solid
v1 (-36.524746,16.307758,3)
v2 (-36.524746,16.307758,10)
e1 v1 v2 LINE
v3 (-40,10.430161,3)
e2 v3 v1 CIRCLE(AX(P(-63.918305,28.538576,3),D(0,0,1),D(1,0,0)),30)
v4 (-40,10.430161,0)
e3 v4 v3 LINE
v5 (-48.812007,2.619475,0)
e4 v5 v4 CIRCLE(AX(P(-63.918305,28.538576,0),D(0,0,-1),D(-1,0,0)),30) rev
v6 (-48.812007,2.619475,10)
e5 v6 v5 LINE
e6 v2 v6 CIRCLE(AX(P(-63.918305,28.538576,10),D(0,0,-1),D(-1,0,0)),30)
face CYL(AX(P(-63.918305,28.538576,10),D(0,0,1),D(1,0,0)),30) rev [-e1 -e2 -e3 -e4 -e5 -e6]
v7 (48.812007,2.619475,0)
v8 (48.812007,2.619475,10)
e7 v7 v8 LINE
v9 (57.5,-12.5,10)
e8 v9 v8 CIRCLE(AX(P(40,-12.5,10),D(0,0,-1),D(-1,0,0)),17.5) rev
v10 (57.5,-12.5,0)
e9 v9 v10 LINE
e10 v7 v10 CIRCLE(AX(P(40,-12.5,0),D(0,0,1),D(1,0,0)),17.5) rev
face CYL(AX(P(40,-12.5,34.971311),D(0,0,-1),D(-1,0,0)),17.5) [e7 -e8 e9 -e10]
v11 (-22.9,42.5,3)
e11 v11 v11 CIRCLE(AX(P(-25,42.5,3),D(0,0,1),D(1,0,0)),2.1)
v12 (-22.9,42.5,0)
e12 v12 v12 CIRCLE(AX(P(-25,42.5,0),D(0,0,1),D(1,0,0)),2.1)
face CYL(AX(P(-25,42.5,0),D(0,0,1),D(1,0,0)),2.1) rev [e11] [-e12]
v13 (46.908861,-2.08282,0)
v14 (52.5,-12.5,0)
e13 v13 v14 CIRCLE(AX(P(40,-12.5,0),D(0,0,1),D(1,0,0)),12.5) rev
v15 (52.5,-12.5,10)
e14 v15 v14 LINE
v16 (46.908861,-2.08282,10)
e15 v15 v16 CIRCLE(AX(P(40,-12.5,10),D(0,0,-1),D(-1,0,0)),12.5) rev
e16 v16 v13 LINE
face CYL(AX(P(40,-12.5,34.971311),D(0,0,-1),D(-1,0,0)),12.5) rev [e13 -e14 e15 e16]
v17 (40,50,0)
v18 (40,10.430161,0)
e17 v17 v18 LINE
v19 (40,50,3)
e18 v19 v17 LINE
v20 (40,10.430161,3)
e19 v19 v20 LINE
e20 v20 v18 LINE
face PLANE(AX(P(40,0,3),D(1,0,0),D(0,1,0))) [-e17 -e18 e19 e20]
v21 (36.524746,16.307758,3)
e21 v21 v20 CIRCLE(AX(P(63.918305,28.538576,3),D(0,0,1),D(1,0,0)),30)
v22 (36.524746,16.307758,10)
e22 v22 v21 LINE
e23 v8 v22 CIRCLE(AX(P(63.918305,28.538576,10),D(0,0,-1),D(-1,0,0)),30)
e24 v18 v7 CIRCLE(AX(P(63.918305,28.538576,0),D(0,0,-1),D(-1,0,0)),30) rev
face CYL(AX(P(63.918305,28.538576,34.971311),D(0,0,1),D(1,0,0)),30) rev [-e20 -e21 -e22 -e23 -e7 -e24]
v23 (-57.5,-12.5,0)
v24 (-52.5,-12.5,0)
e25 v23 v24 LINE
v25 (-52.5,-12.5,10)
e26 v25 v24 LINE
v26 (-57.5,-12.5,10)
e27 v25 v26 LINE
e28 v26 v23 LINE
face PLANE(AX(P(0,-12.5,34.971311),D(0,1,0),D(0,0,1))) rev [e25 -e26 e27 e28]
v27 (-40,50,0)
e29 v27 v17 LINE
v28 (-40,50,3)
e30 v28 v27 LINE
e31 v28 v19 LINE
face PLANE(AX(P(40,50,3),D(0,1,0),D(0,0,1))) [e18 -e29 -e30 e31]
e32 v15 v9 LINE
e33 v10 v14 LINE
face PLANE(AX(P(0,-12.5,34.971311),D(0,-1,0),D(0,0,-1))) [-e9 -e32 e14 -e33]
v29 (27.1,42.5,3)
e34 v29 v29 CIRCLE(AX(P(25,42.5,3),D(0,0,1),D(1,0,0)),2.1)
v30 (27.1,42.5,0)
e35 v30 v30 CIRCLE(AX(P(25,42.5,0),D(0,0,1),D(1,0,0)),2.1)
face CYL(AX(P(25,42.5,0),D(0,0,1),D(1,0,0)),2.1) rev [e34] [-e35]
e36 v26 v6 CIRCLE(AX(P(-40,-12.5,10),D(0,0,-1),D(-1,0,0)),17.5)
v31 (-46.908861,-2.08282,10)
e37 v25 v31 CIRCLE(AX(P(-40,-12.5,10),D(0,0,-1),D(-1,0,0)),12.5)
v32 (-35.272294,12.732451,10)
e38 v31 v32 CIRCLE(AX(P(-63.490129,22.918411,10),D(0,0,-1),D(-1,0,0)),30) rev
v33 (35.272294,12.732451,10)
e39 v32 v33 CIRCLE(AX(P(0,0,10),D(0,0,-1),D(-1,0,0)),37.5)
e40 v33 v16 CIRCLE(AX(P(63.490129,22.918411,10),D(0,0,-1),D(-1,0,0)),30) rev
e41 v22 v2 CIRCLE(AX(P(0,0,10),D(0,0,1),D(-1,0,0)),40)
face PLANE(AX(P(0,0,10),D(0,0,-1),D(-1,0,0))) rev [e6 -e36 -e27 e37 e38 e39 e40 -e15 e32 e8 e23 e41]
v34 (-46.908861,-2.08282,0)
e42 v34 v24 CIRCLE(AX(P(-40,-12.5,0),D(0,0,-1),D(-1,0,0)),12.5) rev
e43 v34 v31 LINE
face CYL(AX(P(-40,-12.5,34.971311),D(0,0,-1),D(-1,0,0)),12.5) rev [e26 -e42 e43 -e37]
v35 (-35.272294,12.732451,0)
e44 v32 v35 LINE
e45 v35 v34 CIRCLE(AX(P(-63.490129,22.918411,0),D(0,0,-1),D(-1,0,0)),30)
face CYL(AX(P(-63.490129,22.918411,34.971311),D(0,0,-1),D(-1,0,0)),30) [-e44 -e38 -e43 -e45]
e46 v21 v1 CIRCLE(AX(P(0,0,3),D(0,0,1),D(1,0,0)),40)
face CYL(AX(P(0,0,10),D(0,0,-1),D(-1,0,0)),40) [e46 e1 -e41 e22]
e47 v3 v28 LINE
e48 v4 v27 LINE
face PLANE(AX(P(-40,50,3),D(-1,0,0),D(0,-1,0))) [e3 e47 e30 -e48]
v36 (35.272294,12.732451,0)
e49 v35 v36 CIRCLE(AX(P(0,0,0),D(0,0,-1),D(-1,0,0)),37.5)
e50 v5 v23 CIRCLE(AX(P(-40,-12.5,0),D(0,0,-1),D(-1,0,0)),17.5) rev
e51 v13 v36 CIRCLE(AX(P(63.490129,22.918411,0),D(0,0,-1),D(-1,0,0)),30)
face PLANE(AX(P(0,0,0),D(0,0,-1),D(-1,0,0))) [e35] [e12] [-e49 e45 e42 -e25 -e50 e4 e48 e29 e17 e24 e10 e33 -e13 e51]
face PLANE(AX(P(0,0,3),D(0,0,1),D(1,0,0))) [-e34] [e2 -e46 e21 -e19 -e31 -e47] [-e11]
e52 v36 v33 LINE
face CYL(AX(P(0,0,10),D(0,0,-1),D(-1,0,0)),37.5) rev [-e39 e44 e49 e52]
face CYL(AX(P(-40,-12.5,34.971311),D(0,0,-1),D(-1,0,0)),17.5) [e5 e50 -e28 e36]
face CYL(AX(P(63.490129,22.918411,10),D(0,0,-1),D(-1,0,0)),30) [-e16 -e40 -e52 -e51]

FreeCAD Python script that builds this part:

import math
import FreeCAD as App
import Part
import Sketcher
from FreeCAD import Vector


def edges_at(feature, points):
    """Names of the edges that pass closest to the given points."""
    edges = feature.Shape.Edges
    near = lambda p: min(range(len(edges)), key=lambda i: edges[i].distToShape(Part.Vertex(*p))[0])
    return sorted({f"Edge{near(p) + 1}" for p in points})

doc = App.newDocument("Part")
body = doc.addObject("PartDesign::Body", "Body")

# Sketch on XY plane
sketch1 = body.newObject("Sketcher::SketchObject", "Sketch")
sketch1.AttachmentSupport = (doc.getObject("XY_Plane"), [""])
sketch1.MapMode = "FlatFace"
sketch1.addGeometry([
    Part.LineSegment(Vector(-40, 0, 0), Vector(-37.5, 0, 0)),
    Part.ArcOfCircle(Part.Circle(Vector(0, 0, 0), Vector(0, 0, 1), 37.5), math.radians(0), math.radians(180)),
    Part.LineSegment(Vector(37.5, 0, 0), Vector(40, 0, 0)),
    Part.ArcOfCircle(Part.Circle(Vector(0, 0, 0), Vector(0, 0, 1), 40), math.radians(0), math.radians(180)),
], False)
sketch1.addConstraint([
    Sketcher.Constraint("Coincident", 0, 2, 1, 2),
    Sketcher.Constraint("Coincident", 1, 1, 2, 1),
    Sketcher.Constraint("Coincident", 2, 2, 3, 1),
    Sketcher.Constraint("Coincident", 3, 2, 0, 1),
    Sketcher.Constraint("Horizontal", 0),
    Sketcher.Constraint("Horizontal", 2),
    Sketcher.Constraint("Coincident", 1, 3, -1, 1),
    Sketcher.Constraint("Coincident", 3, 3, -1, 1),
    Sketcher.Constraint("PointOnObject", 0, 2, -1),
    Sketcher.Constraint("PointOnObject", 1, 1, -1),
    Sketcher.Constraint("Radius", 3, 40.0),
    Sketcher.Constraint("Radius", 1, 37.5),
])
pad1 = body.newObject("PartDesign::Pad", "Pad")
pad1.Profile = sketch1
pad1.Length = 10

# Sketch on XY plane
sketch2 = body.newObject("Sketcher::SketchObject", "Sketch001")
sketch2.AttachmentSupport = (doc.getObject("XY_Plane"), [""])
sketch2.MapMode = "FlatFace"
sketch2.addGeometry([
    Part.LineSegment(Vector(40, 50, 0), Vector(40, 0, 0)),
    Part.ArcOfCircle(Part.Circle(Vector(0, 0, 0), Vector(0, 0, 1), 40), math.radians(0), math.radians(180)),
    Part.LineSegment(Vector(-40, 0, 0), Vector(-40, 50, 0)),
    Part.LineSegment(Vector(-40, 50, 0), Vector(40, 50, 0)),
], False)
sketch2.addConstraint([
    Sketcher.Constraint("Tangent", 0, 2, 1, 1),
    Sketcher.Constraint("Tangent", 1, 2, 2, 1),
    Sketcher.Constraint("Coincident", 2, 2, 3, 1),
    Sketcher.Constraint("Coincident", 3, 2, 0, 1),
    Sketcher.Constraint("Vertical", 0),
    Sketcher.Constraint("Vertical", 2),
    Sketcher.Constraint("Horizontal", 3),
    Sketcher.Constraint("Coincident", 1, 3, -1, 1),
    Sketcher.Constraint("Radius", 1, 40.0),
    Sketcher.Constraint("DistanceY", 0, 2, 0, 1, 50.0),
])
pad2 = body.newObject("PartDesign::Pad", "Pad001")
pad2.Profile = sketch2
pad2.Length = 3

# Sketch on XY plane
sketch3 = body.newObject("Sketcher::SketchObject", "Sketch002")
sketch3.AttachmentSupport = (doc.getObject("XY_Plane"), [""])
sketch3.MapMode = "FlatFace"
sketch3.AttachmentOffset = App.Placement(Vector(0, 0, 3), App.Rotation())
sketch3.addGeometry([
    Part.Circle(Vector(-25, 42.5, 0), Vector(0, 0, 1), 2.1),
    Part.Circle(Vector(25, 42.5, 0), Vector(0, 0, 1), 2.1),
], False)
sketch3.addConstraint([
    Sketcher.Constraint("Equal", 0, 1),
    Sketcher.Constraint("Symmetric", 0, 3, 1, 3, -2),
    Sketcher.Constraint("Diameter", 0, 4.2),
    Sketcher.Constraint("DistanceX", 0, 3, -1, 1, 25.0),
    Sketcher.Constraint("DistanceY", -1, 1, 0, 3, 42.5),
])
pocket1 = body.newObject("PartDesign::Pocket", "Pocket")
pocket1.Profile = sketch3
pocket1.Type = "ThroughAll"

# Sketch on XY plane
sketch4 = body.newObject("Sketcher::SketchObject", "Sketch003")
sketch4.AttachmentSupport = (doc.getObject("XY_Plane"), [""])
sketch4.MapMode = "FlatFace"
sketch4.AttachmentOffset = App.Placement(Vector(0, 0, 10), App.Rotation())
sketch4.addGeometry([
    Part.LineSegment(Vector(-52, -12, 0), Vector(-58, -12, 0)),
    Part.ArcOfCircle(Part.Circle(Vector(-40, -12, 0), Vector(0, 0, 1), 18), math.radians(89), math.radians(180)),
    Part.ArcOfCircle(Part.Circle(Vector(0, 0, 0), Vector(0, 0, 1), 40), math.radians(172.82), math.radians(180)),
    Part.ArcOfCircle(Part.Circle(Vector(-40, -12, 0), Vector(0, 0, 1), 12), math.radians(90), math.radians(180)),
], False)
sketch4.addConstraint([
    Sketcher.Constraint("Coincident", 0, 2, 1, 2),
    Sketcher.Constraint("Coincident", 1, 1, 2, 1),
    Sketcher.Constraint("Coincident", 2, 2, 3, 1),
    Sketcher.Constraint("Coincident", 3, 2, 0, 1),
    Sketcher.Constraint("Horizontal", 0),
    Sketcher.Constraint("Coincident", 2, 3, -1, 1),
    Sketcher.Constraint("Coincident", 3, 3, 1, 3),
    Sketcher.Constraint("PointOnObject", 2, 2, -1),
    Sketcher.Constraint("Horizontal", 3, 3, 0, 2),
    Sketcher.Constraint("Vertical", 3, 3, 2, 2),
    Sketcher.Constraint("Radius", 2, 40.0),
    Sketcher.Constraint("Radius", 1, 17.5),
    Sketcher.Constraint("Radius", 3, 12.5),
])
pad3 = body.newObject("PartDesign::Pad", "Pad002")
pad3.Profile = sketch4
pad3.Length = 10
pad3.Reversed = True
doc.recompute()

mirrored = body.newObject("PartDesign::Mirrored", "Mirrored")
mirrored.Originals = [pad3]
mirrored.MirrorPlane = (doc.getObject("YZ_Plane"), [""])
body.Tip = mirrored
doc.recompute()

fillet = body.newObject("PartDesign::Fillet", "Fillet")
fillet.Base = (mirrored, edges_at(mirrored, [(37.5, 0, 5), (-37.5, 0, 5)]))
fillet.Radius = 30
doc.recompute()

fillet2 = body.newObject("PartDesign::Fillet", "Fillet001")
fillet2.Base = (fillet, edges_at(fillet, [(-39.687, 4.997, 6.5), (39.687, 4.997, 6.5)]))
fillet2.Radius = 30

doc.recompute()
